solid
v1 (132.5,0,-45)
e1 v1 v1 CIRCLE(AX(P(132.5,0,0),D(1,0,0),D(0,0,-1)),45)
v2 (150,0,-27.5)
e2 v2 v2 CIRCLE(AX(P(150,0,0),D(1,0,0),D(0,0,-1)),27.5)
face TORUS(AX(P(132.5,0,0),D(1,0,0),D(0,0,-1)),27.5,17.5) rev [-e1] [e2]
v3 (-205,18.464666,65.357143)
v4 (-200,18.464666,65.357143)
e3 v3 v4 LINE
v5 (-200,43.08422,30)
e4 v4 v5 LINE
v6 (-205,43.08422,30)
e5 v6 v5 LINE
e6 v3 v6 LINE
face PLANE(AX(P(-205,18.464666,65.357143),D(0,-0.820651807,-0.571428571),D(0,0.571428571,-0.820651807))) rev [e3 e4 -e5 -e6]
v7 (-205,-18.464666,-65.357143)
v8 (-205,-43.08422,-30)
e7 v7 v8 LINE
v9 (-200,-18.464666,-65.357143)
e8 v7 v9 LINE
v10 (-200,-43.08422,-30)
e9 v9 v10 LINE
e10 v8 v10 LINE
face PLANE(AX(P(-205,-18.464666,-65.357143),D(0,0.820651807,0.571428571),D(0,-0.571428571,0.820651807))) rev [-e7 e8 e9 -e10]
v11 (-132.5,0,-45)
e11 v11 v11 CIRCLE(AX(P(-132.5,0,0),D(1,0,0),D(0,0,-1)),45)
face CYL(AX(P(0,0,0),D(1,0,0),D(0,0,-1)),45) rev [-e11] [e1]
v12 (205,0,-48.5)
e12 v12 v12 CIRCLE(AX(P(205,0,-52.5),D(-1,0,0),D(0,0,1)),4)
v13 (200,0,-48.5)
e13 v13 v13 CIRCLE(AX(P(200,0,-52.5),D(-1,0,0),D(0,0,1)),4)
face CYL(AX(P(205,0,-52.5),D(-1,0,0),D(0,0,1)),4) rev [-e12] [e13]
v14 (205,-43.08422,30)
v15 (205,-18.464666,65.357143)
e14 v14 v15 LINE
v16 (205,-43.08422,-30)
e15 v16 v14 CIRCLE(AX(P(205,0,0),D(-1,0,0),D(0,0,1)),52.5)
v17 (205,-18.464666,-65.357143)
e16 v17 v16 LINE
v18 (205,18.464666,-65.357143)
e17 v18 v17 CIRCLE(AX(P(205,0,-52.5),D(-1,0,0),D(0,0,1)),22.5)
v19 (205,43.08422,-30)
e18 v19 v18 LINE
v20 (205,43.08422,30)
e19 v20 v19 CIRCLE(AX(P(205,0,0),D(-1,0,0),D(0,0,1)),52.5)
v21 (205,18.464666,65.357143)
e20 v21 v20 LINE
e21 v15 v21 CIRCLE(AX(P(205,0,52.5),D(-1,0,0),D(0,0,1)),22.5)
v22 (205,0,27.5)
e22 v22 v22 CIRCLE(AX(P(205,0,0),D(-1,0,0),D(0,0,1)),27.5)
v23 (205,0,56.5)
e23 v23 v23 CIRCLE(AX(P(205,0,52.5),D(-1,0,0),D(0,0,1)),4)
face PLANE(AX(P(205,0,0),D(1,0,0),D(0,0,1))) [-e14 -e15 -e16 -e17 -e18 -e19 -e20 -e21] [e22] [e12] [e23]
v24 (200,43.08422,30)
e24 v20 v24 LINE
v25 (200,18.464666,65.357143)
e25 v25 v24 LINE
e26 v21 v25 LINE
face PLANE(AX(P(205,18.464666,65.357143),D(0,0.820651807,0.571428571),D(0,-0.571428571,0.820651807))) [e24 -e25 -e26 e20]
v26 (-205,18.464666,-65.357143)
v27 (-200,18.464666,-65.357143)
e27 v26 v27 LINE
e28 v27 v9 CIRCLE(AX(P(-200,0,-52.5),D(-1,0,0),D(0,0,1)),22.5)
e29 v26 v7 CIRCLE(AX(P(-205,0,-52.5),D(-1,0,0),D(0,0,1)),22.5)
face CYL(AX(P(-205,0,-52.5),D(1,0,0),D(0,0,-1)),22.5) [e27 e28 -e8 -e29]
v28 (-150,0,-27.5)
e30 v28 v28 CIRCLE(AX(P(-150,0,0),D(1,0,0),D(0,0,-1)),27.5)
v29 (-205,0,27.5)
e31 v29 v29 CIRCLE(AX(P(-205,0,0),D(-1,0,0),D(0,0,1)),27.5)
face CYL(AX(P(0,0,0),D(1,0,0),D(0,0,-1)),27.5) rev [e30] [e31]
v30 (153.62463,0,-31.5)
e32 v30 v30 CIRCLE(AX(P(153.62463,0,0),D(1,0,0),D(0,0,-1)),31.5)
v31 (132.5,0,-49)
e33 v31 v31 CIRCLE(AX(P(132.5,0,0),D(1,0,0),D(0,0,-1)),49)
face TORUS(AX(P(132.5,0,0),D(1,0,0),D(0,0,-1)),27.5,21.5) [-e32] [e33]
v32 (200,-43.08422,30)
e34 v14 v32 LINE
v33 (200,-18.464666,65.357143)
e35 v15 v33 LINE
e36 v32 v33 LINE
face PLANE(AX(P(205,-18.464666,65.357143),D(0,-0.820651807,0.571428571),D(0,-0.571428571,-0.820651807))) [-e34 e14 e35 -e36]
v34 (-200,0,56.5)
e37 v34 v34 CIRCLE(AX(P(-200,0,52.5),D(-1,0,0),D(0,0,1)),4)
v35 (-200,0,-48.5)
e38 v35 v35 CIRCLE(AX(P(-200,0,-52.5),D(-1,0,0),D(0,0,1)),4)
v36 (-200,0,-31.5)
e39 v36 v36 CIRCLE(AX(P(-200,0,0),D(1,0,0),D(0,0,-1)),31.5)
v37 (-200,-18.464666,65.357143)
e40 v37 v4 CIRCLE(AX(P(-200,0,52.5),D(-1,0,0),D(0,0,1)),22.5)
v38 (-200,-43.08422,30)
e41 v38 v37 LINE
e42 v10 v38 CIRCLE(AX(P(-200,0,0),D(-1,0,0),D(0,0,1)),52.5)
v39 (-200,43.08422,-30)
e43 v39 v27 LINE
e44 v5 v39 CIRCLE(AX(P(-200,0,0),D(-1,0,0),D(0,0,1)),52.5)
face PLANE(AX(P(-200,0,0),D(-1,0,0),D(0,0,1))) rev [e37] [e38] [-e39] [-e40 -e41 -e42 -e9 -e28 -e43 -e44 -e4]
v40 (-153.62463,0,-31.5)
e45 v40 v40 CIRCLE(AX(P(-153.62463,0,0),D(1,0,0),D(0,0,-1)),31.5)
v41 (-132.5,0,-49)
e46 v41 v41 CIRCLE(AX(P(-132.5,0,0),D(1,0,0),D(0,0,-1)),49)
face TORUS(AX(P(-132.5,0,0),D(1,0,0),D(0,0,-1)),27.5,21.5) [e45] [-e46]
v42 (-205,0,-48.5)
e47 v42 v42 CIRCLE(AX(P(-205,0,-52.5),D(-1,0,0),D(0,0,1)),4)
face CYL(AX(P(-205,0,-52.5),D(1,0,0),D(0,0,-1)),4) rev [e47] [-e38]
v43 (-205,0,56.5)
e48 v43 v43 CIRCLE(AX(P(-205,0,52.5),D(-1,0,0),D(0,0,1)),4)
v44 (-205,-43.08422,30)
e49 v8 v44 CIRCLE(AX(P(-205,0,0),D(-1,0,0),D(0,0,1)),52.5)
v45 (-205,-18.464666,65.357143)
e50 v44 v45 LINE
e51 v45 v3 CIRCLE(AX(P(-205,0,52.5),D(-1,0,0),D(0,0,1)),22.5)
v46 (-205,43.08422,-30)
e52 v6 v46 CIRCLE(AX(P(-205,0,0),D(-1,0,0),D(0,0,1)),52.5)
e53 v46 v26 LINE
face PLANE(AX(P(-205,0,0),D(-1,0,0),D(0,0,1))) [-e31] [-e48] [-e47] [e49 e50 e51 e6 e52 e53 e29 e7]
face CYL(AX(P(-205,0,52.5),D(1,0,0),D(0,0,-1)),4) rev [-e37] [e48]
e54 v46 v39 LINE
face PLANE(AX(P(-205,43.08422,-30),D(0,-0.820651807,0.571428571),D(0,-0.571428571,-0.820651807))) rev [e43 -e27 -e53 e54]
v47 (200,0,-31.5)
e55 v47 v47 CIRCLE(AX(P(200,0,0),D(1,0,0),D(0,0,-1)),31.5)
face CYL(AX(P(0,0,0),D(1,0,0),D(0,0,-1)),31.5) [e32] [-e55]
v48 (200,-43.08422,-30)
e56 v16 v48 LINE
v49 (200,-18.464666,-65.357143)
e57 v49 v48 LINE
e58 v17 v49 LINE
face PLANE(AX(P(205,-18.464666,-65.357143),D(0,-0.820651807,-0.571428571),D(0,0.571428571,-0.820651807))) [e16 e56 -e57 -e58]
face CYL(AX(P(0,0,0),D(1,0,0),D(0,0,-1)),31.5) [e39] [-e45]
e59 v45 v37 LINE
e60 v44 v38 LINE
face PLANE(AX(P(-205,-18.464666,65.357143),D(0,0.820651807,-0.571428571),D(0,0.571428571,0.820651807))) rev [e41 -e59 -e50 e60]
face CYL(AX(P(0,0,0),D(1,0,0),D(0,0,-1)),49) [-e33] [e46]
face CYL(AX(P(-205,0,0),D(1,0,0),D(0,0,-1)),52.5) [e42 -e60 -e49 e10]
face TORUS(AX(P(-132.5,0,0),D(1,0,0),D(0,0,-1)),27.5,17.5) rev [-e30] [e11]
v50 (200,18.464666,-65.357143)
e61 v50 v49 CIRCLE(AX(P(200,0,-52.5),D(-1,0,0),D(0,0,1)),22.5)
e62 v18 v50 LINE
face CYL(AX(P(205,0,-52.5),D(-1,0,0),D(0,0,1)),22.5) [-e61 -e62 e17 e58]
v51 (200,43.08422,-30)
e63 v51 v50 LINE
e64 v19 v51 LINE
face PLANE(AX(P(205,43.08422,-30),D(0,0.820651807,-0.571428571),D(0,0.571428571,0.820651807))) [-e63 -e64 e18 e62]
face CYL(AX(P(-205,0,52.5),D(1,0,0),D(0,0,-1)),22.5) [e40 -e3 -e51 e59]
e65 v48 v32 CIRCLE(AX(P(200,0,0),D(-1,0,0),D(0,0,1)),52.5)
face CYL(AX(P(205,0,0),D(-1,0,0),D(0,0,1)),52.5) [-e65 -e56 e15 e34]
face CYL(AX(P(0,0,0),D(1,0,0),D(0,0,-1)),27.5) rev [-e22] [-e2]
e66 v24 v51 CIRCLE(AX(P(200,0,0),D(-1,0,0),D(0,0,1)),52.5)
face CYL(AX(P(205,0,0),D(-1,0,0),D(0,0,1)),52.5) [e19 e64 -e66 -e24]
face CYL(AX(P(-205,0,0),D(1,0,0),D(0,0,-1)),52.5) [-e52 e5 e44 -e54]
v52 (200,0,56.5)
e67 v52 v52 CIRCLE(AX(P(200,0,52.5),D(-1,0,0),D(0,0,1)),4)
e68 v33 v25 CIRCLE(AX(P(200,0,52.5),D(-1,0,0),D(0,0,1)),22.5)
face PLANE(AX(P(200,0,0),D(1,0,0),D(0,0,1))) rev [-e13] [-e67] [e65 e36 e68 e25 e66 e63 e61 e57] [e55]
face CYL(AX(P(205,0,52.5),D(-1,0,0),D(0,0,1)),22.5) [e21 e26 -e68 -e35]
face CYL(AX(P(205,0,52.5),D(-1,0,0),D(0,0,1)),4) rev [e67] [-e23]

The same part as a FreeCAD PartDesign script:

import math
import FreeCAD as App
import Part
import Sketcher

V = App.Vector
Q = App.Units.Quantity

doc = App.newDocument("Part")
body = doc.addObject("PartDesign::Body", "Body")

sketch1 = body.newObject("Sketcher::SketchObject", "Sketch")
sketch1.AttachmentSupport = (doc.getObject("XZ_Plane"), [""])
sketch1.MapMode = "FlatFace"
sketch1.addGeometry(Part.LineSegment(V(-200, -27.5, 0), V(-150, -27.5, 0)), False)
sketch1.addGeometry(Part.ArcOfCircle(Part.Circle(V(-132.5, -27.5, 0), V(0, 0, 1), 17.5), math.radians(180), math.radians(270)), False)
sketch1.addGeometry(Part.LineSegment(V(-132.5, -45, 0), V(132.5, -45, 0)), False)
sketch1.addGeometry(Part.ArcOfCircle(Part.Circle(V(132.5, -27.5, 0), V(0, 0, 1), 17.5), math.radians(-90), math.radians(0)), False)
sketch1.addGeometry(Part.LineSegment(V(150, -27.5, 0), V(200, -27.5, 0)), False)
sketch1.addGeometry(Part.LineSegment(V(200, -27.5, 0), V(200, -31.5, 0)), False)
sketch1.addGeometry(Part.LineSegment(V(200, -31.5, 0), V(153.62463, -31.5, 0)), False)
sketch1.addGeometry(Part.ArcOfCircle(Part.Circle(V(132.5, -27.5, 0), V(0, 0, 1), 21.5), math.radians(-90), math.radians(-10.722152)), False)
sketch1.addGeometry(Part.LineSegment(V(132.5, -49, 0), V(-132.5, -49, 0)), False)
sketch1.addGeometry(Part.ArcOfCircle(Part.Circle(V(-132.5, -27.5, 0), V(0, 0, 1), 21.5), math.radians(-169.277848), math.radians(-90)), False)
sketch1.addGeometry(Part.LineSegment(V(-153.62463, -31.5, 0), V(-200, -31.5, 0)), False)
sketch1.addGeometry(Part.LineSegment(V(-200, -31.5, 0), V(-200, -27.5, 0)), False)
sketch1.addConstraint(Sketcher.Constraint("Coincident", 0, 2, 1, 1))
sketch1.addConstraint(Sketcher.Constraint("Tangent", 1, 2, 2, 1))
sketch1.addConstraint(Sketcher.Constraint("Tangent", 2, 2, 3, 1))
sketch1.addConstraint(Sketcher.Constraint("Coincident", 3, 2, 4, 1))
sketch1.addConstraint(Sketcher.Constraint("Coincident", 4, 2, 5, 1))
sketch1.addConstraint(Sketcher.Constraint("Coincident", 5, 2, 6, 1))
sketch1.addConstraint(Sketcher.Constraint("Coincident", 6, 2, 7, 2))
sketch1.addConstraint(Sketcher.Constraint("Tangent", 7, 1, 8, 1))
sketch1.addConstraint(Sketcher.Constraint("Tangent", 8, 2, 9, 2))
sketch1.addConstraint(Sketcher.Constraint("Coincident", 9, 1, 10, 1))
sketch1.addConstraint(Sketcher.Constraint("Coincident", 10, 2, 11, 1))
sketch1.addConstraint(Sketcher.Constraint("Coincident", 11, 2, 0, 1))
sketch1.addConstraint(Sketcher.Constraint("Horizontal", 0))
sketch1.addConstraint(Sketcher.Constraint("Horizontal", 2))
sketch1.addConstraint(Sketcher.Constraint("Horizontal", 4))
sketch1.addConstraint(Sketcher.Constraint("Vertical", 5))
sketch1.addConstraint(Sketcher.Constraint("Horizontal", 6))
sketch1.addConstraint(Sketcher.Constraint("Horizontal", 8))
sketch1.addConstraint(Sketcher.Constraint("Horizontal", 10))
sketch1.addConstraint(Sketcher.Constraint("Vertical", 11))
sketch1.addConstraint(Sketcher.Constraint("Coincident", 7, 3, 3, 3))
sketch1.addConstraint(Sketcher.Constraint("Coincident", 9, 3, 1, 3))
sketch1.addConstraint(Sketcher.Constraint("Equal", 1, 3))
sketch1.addConstraint(Sketcher.Constraint("Symmetric", 0, 2, 3, 2, -2))
sketch1.addConstraint(Sketcher.Constraint("Symmetric", 5, 2, 10, 2, -2))
sketch1.addConstraint(Sketcher.Constraint("Horizontal", 9, 3, 0, 2))
sketch1.addConstraint(Sketcher.Constraint("Radius", 1, Q("17.5 mm")))
sketch1.addConstraint(Sketcher.Constraint("Radius", 7, Q("21.5 mm")))
sketch1.addConstraint(Sketcher.Constraint("DistanceX", 0, 1, 0, 2, Q("50 mm")))
sketch1.addConstraint(Sketcher.Constraint("DistanceX", 2, 1, 2, 2, Q("265 mm")))
sketch1.addConstraint(Sketcher.Constraint("DistanceY", 5, 2, 5, 1, Q("4 mm")))
sketch1.addConstraint(Sketcher.Constraint("DistanceY", 1, 2, -1, 1, Q("45 mm")))
revolution = body.newObject("PartDesign::Revolution", "Revolution")
revolution.Profile = sketch1
revolution.ReferenceAxis = (sketch1, ["H_Axis"])
revolution.Angle = 360

sketch2 = body.newObject("Sketcher::SketchObject", "Sketch001")
sketch2.AttachmentSupport = (doc.getObject("YZ_Plane"), [""])
sketch2.MapMode = "FlatFace"
sketch2.AttachmentOffset = App.Placement(V(0, 0, -200), App.Rotation())
sketch2.addGeometry(Part.LineSegment(V(43.08422, -30, 0), V(18.464666, -65.357143, 0)), False)
sketch2.addGeometry(Part.ArcOfCircle(Part.Circle(V(0, -52.5, 0), V(0, 0, 1), 22.5), math.radians(-145.150095), math.radians(-34.849905)), False)
sketch2.addGeometry(Part.LineSegment(V(-18.464666, -65.357143, 0), V(-43.08422, -30, 0)), False)
sketch2.addGeometry(Part.ArcOfCircle(Part.Circle(V(0, 0, 0), V(0, 0, 1), 52.5), math.radians(145.150095), math.radians(214.849905)), False)
sketch2.addGeometry(Part.LineSegment(V(-43.08422, 30, 0), V(-18.464666, 65.357143, 0)), False)
sketch2.addGeometry(Part.ArcOfCircle(Part.Circle(V(0, 52.5, 0), V(0, 0, 1), 22.5), math.radians(34.849905), math.radians(145.150095)), False)
sketch2.addGeometry(Part.LineSegment(V(18.464666, 65.357143, 0), V(43.08422, 30, 0)), False)
sketch2.addGeometry(Part.ArcOfCircle(Part.Circle(V(0, 0, 0), V(0, 0, 1), 52.5), math.radians(-34.849905), math.radians(34.849905)), False)
sketch2.addGeometry(Part.Circle(V(0, -52.5, 0), V(0, 0, 1), 4), False)
sketch2.addGeometry(Part.Circle(V(0, 0, 0), V(0, 0, 1), 27.5), False)
sketch2.addGeometry(Part.Circle(V(0, 52.5, 0), V(0, 0, 1), 4), False)
sketch2.addConstraint(Sketcher.Constraint("Tangent", 0, 2, 1, 2))
sketch2.addConstraint(Sketcher.Constraint("Tangent", 1, 1, 2, 1))
sketch2.addConstraint(Sketcher.Constraint("Tangent", 2, 2, 3, 2))
sketch2.addConstraint(Sketcher.Constraint("Tangent", 3, 1, 4, 1))
sketch2.addConstraint(Sketcher.Constraint("Tangent", 4, 2, 5, 2))
sketch2.addConstraint(Sketcher.Constraint("Tangent", 5, 1, 6, 1))
sketch2.addConstraint(Sketcher.Constraint("Tangent", 6, 2, 7, 2))
sketch2.addConstraint(Sketcher.Constraint("Tangent", 7, 1, 0, 1))
sketch2.addConstraint(Sketcher.Constraint("Coincident", 3, 3, -1, 1))
sketch2.addConstraint(Sketcher.Constraint("Coincident", 7, 3, -1, 1))
sketch2.addConstraint(Sketcher.Constraint("Coincident", 9, 3, -1, 1))
sketch2.addConstraint(Sketcher.Constraint("Coincident", 8, 3, 1, 3))
sketch2.addConstraint(Sketcher.Constraint("Coincident", 10, 3, 5, 3))
sketch2.addConstraint(Sketcher.Constraint("Equal", 1, 5))
sketch2.addConstraint(Sketcher.Constraint("Equal", 3, 7))
sketch2.addConstraint(Sketcher.Constraint("Equal", 8, 10))
sketch2.addConstraint(Sketcher.Constraint("Symmetric", 1, 3, 5, 3, -1, 1))
sketch2.addConstraint(Sketcher.Constraint("PointOnObject", 1, 3, -2))
sketch2.addConstraint(Sketcher.Constraint("Diameter", 8, Q("8 mm")))
sketch2.addConstraint(Sketcher.Constraint("Diameter", 9, Q("55 mm")))
sketch2.addConstraint(Sketcher.Constraint("Radius", 1, Q("22.5 mm")))
sketch2.addConstraint(Sketcher.Constraint("Radius", 3, Q("52.5 mm")))
sketch2.addConstraint(Sketcher.Constraint("DistanceY", 2, 2, -1, 1, Q("30 mm")))
pad1 = body.newObject("PartDesign::Pad", "Pad")
pad1.Profile = sketch2
pad1.Length = 5
pad1.Reversed = True
doc.recompute()

mirrored = body.newObject("PartDesign::Mirrored", "Mirrored")
mirrored.Originals = [pad1]
mirrored.MirrorPlane = (doc.getObject("YZ_Plane"), [""])
body.Tip = mirrored

doc.recompute()
